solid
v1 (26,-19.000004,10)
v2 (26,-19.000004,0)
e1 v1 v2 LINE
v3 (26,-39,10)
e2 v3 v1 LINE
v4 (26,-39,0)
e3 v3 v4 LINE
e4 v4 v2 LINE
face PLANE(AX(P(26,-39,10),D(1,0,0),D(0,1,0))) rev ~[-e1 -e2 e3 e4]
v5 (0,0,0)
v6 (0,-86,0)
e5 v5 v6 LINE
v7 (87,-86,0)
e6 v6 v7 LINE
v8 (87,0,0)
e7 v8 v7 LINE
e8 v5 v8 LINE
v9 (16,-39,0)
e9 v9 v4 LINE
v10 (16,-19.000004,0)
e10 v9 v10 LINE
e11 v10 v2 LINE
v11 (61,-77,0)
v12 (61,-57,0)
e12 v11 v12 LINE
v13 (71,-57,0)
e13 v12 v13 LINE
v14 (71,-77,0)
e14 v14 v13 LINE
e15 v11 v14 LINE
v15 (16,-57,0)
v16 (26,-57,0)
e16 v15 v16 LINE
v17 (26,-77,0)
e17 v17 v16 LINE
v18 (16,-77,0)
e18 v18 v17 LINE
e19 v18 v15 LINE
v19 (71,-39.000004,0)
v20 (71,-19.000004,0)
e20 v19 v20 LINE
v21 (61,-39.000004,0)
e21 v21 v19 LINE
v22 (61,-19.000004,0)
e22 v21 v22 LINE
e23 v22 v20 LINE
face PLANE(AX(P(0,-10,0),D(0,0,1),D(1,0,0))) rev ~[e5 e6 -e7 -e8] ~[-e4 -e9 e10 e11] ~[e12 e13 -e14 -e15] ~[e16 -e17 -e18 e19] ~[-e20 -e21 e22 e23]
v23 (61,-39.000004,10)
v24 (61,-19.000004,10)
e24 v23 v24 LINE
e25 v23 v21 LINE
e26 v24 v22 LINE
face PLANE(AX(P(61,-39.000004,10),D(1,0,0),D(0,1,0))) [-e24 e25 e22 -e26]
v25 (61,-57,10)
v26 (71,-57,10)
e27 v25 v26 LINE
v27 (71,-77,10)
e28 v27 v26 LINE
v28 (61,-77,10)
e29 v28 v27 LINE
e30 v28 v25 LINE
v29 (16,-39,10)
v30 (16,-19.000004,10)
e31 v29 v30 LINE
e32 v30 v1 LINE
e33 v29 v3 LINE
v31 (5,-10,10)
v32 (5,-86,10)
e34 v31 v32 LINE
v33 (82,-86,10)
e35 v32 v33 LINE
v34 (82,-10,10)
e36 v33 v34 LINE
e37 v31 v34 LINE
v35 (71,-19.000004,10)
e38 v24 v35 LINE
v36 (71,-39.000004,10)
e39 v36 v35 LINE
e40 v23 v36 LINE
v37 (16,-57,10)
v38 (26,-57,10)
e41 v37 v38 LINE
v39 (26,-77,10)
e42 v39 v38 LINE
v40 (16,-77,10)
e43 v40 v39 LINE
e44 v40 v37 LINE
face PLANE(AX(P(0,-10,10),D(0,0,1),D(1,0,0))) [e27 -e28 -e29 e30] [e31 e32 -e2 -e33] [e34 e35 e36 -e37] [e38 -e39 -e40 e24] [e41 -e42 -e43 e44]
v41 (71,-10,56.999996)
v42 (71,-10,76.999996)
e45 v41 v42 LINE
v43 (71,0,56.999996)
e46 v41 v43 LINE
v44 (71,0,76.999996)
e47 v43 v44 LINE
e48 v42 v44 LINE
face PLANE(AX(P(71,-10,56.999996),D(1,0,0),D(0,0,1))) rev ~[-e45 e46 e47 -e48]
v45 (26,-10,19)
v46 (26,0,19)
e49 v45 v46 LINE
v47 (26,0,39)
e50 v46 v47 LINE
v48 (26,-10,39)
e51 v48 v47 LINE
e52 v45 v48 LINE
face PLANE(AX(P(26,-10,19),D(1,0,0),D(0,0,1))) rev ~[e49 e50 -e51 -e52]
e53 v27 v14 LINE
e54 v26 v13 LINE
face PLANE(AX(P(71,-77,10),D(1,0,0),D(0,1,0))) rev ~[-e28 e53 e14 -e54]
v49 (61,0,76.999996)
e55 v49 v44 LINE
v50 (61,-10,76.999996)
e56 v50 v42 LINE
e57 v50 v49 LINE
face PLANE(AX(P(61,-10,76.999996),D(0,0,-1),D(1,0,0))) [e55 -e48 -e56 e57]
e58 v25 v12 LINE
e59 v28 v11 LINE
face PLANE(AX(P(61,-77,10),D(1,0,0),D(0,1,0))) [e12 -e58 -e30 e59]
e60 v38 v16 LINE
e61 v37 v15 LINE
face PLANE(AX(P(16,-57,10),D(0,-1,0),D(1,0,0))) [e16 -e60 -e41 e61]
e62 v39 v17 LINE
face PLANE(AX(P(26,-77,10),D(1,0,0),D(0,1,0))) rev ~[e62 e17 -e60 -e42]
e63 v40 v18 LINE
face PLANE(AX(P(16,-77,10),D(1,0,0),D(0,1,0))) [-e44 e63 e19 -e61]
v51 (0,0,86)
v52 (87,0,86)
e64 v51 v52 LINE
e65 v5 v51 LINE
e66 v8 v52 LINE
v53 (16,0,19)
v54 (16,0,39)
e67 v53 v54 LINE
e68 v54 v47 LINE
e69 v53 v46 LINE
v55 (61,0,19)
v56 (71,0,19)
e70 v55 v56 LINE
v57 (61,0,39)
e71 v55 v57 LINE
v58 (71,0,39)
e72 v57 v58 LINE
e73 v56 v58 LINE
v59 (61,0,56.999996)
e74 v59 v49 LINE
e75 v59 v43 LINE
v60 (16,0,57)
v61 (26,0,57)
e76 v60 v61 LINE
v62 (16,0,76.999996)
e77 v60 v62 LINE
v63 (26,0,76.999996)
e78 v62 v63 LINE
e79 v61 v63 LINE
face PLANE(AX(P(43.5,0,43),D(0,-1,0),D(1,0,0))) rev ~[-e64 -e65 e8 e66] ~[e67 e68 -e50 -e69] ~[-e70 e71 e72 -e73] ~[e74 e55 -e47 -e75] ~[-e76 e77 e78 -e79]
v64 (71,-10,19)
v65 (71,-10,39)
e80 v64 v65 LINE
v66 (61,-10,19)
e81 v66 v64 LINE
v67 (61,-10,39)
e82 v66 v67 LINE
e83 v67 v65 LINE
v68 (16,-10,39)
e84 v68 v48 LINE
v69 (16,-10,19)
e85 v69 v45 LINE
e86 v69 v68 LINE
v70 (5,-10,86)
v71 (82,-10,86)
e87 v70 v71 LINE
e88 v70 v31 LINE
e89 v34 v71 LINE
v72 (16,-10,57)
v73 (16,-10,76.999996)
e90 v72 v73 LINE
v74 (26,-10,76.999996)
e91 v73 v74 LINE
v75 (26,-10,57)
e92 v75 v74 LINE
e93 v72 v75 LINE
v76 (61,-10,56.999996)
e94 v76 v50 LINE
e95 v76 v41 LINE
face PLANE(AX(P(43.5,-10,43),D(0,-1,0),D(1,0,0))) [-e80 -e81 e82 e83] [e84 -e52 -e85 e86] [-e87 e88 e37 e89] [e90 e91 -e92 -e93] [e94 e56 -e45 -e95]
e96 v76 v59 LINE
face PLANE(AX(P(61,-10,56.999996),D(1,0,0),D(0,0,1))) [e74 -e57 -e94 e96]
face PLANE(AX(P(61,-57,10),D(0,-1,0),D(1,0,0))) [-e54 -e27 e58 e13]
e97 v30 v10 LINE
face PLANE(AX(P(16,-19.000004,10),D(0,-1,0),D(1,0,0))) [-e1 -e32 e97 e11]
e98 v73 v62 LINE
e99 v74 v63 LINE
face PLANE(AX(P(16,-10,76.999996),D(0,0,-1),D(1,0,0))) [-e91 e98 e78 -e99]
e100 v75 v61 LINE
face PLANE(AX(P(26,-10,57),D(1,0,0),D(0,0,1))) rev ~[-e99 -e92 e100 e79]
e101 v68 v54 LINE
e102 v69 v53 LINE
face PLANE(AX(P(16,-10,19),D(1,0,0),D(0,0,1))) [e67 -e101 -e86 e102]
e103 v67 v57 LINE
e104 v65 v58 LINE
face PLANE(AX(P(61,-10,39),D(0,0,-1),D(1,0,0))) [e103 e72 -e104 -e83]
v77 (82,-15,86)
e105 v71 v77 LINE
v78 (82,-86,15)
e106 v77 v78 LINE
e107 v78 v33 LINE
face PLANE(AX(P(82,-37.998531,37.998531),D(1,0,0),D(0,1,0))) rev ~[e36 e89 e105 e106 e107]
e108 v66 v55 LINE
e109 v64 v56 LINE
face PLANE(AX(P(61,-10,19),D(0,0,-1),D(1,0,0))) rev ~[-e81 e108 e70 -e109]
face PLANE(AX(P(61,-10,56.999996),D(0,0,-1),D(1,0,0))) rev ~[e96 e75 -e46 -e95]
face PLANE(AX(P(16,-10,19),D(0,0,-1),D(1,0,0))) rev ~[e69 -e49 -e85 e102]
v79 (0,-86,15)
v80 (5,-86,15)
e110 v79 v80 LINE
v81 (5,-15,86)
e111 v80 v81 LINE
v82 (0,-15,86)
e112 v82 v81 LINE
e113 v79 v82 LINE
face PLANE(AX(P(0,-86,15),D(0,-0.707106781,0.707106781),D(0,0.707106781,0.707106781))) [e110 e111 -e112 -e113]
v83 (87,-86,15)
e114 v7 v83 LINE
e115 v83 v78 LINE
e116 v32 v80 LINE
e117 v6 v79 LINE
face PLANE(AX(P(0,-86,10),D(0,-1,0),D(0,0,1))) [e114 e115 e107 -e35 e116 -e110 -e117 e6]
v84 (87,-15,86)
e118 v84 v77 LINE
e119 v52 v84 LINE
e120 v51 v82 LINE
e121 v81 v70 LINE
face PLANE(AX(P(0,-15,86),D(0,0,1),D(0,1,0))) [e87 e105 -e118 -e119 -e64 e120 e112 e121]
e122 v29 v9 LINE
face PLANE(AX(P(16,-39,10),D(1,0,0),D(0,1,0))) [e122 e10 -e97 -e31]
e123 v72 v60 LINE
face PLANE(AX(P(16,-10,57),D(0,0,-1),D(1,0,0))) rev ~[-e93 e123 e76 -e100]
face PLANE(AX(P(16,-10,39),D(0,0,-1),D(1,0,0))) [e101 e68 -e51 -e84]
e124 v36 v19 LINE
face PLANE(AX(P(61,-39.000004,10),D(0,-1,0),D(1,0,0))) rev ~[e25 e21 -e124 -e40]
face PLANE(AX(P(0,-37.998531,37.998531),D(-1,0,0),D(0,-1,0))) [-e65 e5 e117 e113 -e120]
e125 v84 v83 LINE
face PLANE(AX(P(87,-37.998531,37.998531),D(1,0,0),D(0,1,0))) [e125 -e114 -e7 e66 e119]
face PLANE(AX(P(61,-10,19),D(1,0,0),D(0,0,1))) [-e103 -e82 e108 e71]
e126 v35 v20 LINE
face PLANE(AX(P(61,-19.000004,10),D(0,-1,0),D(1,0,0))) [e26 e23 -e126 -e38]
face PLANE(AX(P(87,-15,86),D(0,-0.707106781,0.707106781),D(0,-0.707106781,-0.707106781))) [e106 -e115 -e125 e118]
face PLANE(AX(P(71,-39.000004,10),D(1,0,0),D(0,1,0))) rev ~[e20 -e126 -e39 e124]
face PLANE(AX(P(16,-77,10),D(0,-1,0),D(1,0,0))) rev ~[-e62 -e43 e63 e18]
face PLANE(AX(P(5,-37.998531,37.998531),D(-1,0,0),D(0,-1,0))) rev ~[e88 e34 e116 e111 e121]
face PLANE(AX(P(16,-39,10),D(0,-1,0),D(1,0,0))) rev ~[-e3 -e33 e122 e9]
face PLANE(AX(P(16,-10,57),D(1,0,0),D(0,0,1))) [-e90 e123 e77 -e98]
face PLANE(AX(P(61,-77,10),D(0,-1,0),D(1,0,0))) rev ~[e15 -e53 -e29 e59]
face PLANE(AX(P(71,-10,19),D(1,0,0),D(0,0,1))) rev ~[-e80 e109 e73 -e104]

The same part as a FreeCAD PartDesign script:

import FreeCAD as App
import Part
import Sketcher

doc = App.newDocument("Part")
body = doc.addObject("PartDesign::Body", "Body")

# Sketch on XZ plane
sketch1 = body.newObject("Sketcher::SketchObject", "Sketch")
sketch1.AttachmentSupport = (doc.getObject("XZ_Plane"), [""])
sketch1.MapMode = "FlatFace"
sketch1.addGeometry(Part.LineSegment(App.Vector(0, 86, 0), App.Vector(0, 0, 0)), False)
sketch1.addGeometry(Part.LineSegment(App.Vector(0, 0, 0), App.Vector(87, 0, 0)), False)
sketch1.addGeometry(Part.LineSegment(App.Vector(87, 0, 0), App.Vector(87, 86, 0)), False)
sketch1.addGeometry(Part.LineSegment(App.Vector(87, 86, 0), App.Vector(0, 86, 0)), False)
sketch1.addConstraint(Sketcher.Constraint("Coincident", 0, 2, 1, 1))
sketch1.addConstraint(Sketcher.Constraint("Coincident", 1, 2, 2, 1))
sketch1.addConstraint(Sketcher.Constraint("Coincident", 2, 2, 3, 1))
sketch1.addConstraint(Sketcher.Constraint("Coincident", 3, 2, 0, 1))
sketch1.addConstraint(Sketcher.Constraint("Vertical", 0))
sketch1.addConstraint(Sketcher.Constraint("Horizontal", 1))
sketch1.addConstraint(Sketcher.Constraint("Vertical", 2))
sketch1.addConstraint(Sketcher.Constraint("Horizontal", 3))
sketch1.addConstraint(Sketcher.Constraint("Coincident", 0, 2, -1, 1))
sketch1.addConstraint(Sketcher.Constraint("DistanceX", 1, 1, 1, 2, 87.0))
sketch1.addConstraint(Sketcher.Constraint("DistanceY", 0, 2, 0, 1, 86.0))
pad1 = body.newObject("PartDesign::Pad", "Pad")
pad1.Profile = sketch1
pad1.Length = 10

# Sketch on XZ plane
sketch2 = body.newObject("Sketcher::SketchObject", "Sketch001")
sketch2.AttachmentSupport = (doc.getObject("XZ_Plane"), [""])
sketch2.MapMode = "FlatFace"
sketch2.AttachmentOffset = App.Placement(App.Vector(0, 0, 10), App.Rotation())
sketch2.addGeometry(Part.LineSegment(App.Vector(0, 10, 0), App.Vector(0, 0, 0)), False)
sketch2.addGeometry(Part.LineSegment(App.Vector(0, 0, 0), App.Vector(87, 0, 0)), False)
sketch2.addGeometry(Part.LineSegment(App.Vector(87, 0, 0), App.Vector(87, 10, 0)), False)
sketch2.addGeometry(Part.LineSegment(App.Vector(87, 10, 0), App.Vector(0, 10, 0)), False)
sketch2.addConstraint(Sketcher.Constraint("Coincident", 0, 2, 1, 1))
sketch2.addConstraint(Sketcher.Constraint("Coincident", 1, 2, 2, 1))
sketch2.addConstraint(Sketcher.Constraint("Coincident", 2, 2, 3, 1))
sketch2.addConstraint(Sketcher.Constraint("Coincident", 3, 2, 0, 1))
sketch2.addConstraint(Sketcher.Constraint("Vertical", 0))
sketch2.addConstraint(Sketcher.Constraint("Horizontal", 1))
sketch2.addConstraint(Sketcher.Constraint("Vertical", 2))
sketch2.addConstraint(Sketcher.Constraint("Horizontal", 3))
sketch2.addConstraint(Sketcher.Constraint("Coincident", 0, 2, -1, 1))
sketch2.addConstraint(Sketcher.Constraint("DistanceX", 1, 1, 1, 2, 87.0))
sketch2.addConstraint(Sketcher.Constraint("DistanceY", 0, 2, 0, 1, 10.0))
pad2 = body.newObject("PartDesign::Pad", "Pad001")
pad2.Profile = sketch2
pad2.Length = 76

# Sketch on YZ plane
sketch3 = body.newObject("Sketcher::SketchObject", "Sketch002")
sketch3.AttachmentSupport = (doc.getObject("YZ_Plane"), [""])
sketch3.MapMode = "FlatFace"
sketch3.AttachmentOffset = App.Placement(App.Vector(0, 0, 87), App.Rotation())
sketch3.addGeometry(Part.LineSegment(App.Vector(-86, 15, 0), App.Vector(-86, 10, 0)), False)
sketch3.addGeometry(Part.LineSegment(App.Vector(-86, 10, 0), App.Vector(-10, 10, 0)), False)
sketch3.addGeometry(Part.LineSegment(App.Vector(-10, 10, 0), App.Vector(-10, 86, 0)), False)
sketch3.addGeometry(Part.LineSegment(App.Vector(-10, 86, 0), App.Vector(-15, 86, 0)), False)
sketch3.addGeometry(Part.LineSegment(App.Vector(-15, 86, 0), App.Vector(-86, 15, 0)), False)
sketch3.addConstraint(Sketcher.Constraint("Coincident", 0, 2, 1, 1))
sketch3.addConstraint(Sketcher.Constraint("Coincident", 1, 2, 2, 1))
sketch3.addConstraint(Sketcher.Constraint("Coincident", 2, 2, 3, 1))
sketch3.addConstraint(Sketcher.Constraint("Coincident", 3, 2, 4, 1))
sketch3.addConstraint(Sketcher.Constraint("Coincident", 4, 2, 0, 1))
sketch3.addConstraint(Sketcher.Constraint("Vertical", 0))
sketch3.addConstraint(Sketcher.Constraint("Horizontal", 1))
sketch3.addConstraint(Sketcher.Constraint("Vertical", 2))
sketch3.addConstraint(Sketcher.Constraint("Horizontal", 3))
sketch3.addConstraint(Sketcher.Constraint("Equal", 3, 0))
sketch3.addConstraint(Sketcher.Constraint("Equal", 1, 2))
sketch3.addConstraint(Sketcher.Constraint("DistanceX", 1, 1, 1, 2, 76.0))
sketch3.addConstraint(Sketcher.Constraint("DistanceX", 3, 2, 3, 1, 5.0))
sketch3.addConstraint(Sketcher.Constraint("DistanceX", 0, 2, -1, 1, 86.0))
sketch3.addConstraint(Sketcher.Constraint("DistanceY", -1, 1, 0, 2, 10.0))
pad3 = body.newObject("PartDesign::Pad", "Pad002")
pad3.Profile = sketch3
pad3.Length = 5
pad3.Reversed = True

# Sketch on YZ plane
sketch4 = body.newObject("Sketcher::SketchObject", "Sketch003")
sketch4.AttachmentSupport = (doc.getObject("YZ_Plane"), [""])
sketch4.MapMode = "FlatFace"
sketch4.addGeometry(Part.LineSegment(App.Vector(-15, 86, 0), App.Vector(-10, 86, 0)), False)
sketch4.addGeometry(Part.LineSegment(App.Vector(-10, 86, 0), App.Vector(-10, 10, 0)), False)
sketch4.addGeometry(Part.LineSegment(App.Vector(-10, 10, 0), App.Vector(-86, 10, 0)), False)
sketch4.addGeometry(Part.LineSegment(App.Vector(-86, 10, 0), App.Vector(-86, 15, 0)), False)
sketch4.addGeometry(Part.LineSegment(App.Vector(-86, 15, 0), App.Vector(-15, 86, 0)), False)
sketch4.addConstraint(Sketcher.Constraint("Coincident", 0, 2, 1, 1))
sketch4.addConstraint(Sketcher.Constraint("Coincident", 1, 2, 2, 1))
sketch4.addConstraint(Sketcher.Constraint("Coincident", 2, 2, 3, 1))
sketch4.addConstraint(Sketcher.Constraint("Coincident", 3, 2, 4, 1))
sketch4.addConstraint(Sketcher.Constraint("Coincident", 4, 2, 0, 1))
sketch4.addConstraint(Sketcher.Constraint("Horizontal", 0))
sketch4.addConstraint(Sketcher.Constraint("Vertical", 1))
sketch4.addConstraint(Sketcher.Constraint("Horizontal", 2))
sketch4.addConstraint(Sketcher.Constraint("Vertical", 3))
sketch4.addConstraint(Sketcher.Constraint("Equal", 2, 1))
sketch4.addConstraint(Sketcher.Constraint("Equal", 0, 3))
sketch4.addConstraint(Sketcher.Constraint("DistanceX", 0, 1, 0, 2, 5.0))
sketch4.addConstraint(Sketcher.Constraint("DistanceX", 2, 2, 2, 1, 76.0))
sketch4.addConstraint(Sketcher.Constraint("DistanceX", 0, 2, -1, 1, 10.0))
sketch4.addConstraint(Sketcher.Constraint("DistanceY", -1, 1, 0, 2, 86.0))
pad4 = body.newObject("PartDesign::Pad", "Pad003")
pad4.Profile = sketch4
pad4.Length = 5

# Sketch on XZ plane
sketch5 = body.newObject("Sketcher::SketchObject", "Sketch004")
sketch5.AttachmentSupport = (doc.getObject("XZ_Plane"), [""])
sketch5.MapMode = "FlatFace"
sketch5.AttachmentOffset = App.Placement(App.Vector(0, 0, 10), App.Rotation())
sketch5.addGeometry(Part.LineSegment(App.Vector(16, 77, 0), App.Vector(16, 57, 0)), False)
sketch5.addGeometry(Part.LineSegment(App.Vector(16, 57, 0), App.Vector(26, 57, 0)), False)
sketch5.addGeometry(Part.LineSegment(App.Vector(26, 57, 0), App.Vector(26, 77, 0)), False)
sketch5.addGeometry(Part.LineSegment(App.Vector(26, 77, 0), App.Vector(16, 77, 0)), False)
sketch5.addGeometry(Part.LineSegment(App.Vector(16, 39, 0), App.Vector(16, 19, 0)), False)
sketch5.addGeometry(Part.LineSegment(App.Vector(16, 19, 0), App.Vector(26, 19, 0)), False)
sketch5.addGeometry(Part.LineSegment(App.Vector(26, 19, 0), App.Vector(26, 39, 0)), False)
sketch5.addGeometry(Part.LineSegment(App.Vector(26, 39, 0), App.Vector(16, 39, 0)), False)
sketch5.addGeometry(Part.LineSegment(App.Vector(61, 77, 0), App.Vector(61, 57, 0)), False)
sketch5.addGeometry(Part.LineSegment(App.Vector(61, 57, 0), App.Vector(71, 57, 0)), False)
sketch5.addGeometry(Part.LineSegment(App.Vector(71, 57, 0), App.Vector(71, 77, 0)), False)
sketch5.addGeometry(Part.LineSegment(App.Vector(71, 77, 0), App.Vector(61, 77, 0)), False)
sketch5.addGeometry(Part.LineSegment(App.Vector(61, 39, 0), App.Vector(61, 19, 0)), False)
sketch5.addGeometry(Part.LineSegment(App.Vector(61, 19, 0), App.Vector(71, 19, 0)), False)
sketch5.addGeometry(Part.LineSegment(App.Vector(71, 19, 0), App.Vector(71, 39, 0)), False)
sketch5.addGeometry(Part.LineSegment(App.Vector(71, 39, 0), App.Vector(61, 39, 0)), False)
sketch5.addConstraint(Sketcher.Constraint("Coincident", 0, 2, 1, 1))
sketch5.addConstraint(Sketcher.Constraint("Coincident", 1, 2, 2, 1))
sketch5.addConstraint(Sketcher.Constraint("Coincident", 2, 2, 3, 1))
sketch5.addConstraint(Sketcher.Constraint("Coincident", 3, 2, 0, 1))
sketch5.addConstraint(Sketcher.Constraint("Coincident", 4, 2, 5, 1))
sketch5.addConstraint(Sketcher.Constraint("Coincident", 5, 2, 6, 1))
sketch5.addConstraint(Sketcher.Constraint("Coincident", 6, 2, 7, 1))
sketch5.addConstraint(Sketcher.Constraint("Coincident", 7, 2, 4, 1))
sketch5.addConstraint(Sketcher.Constraint("Coincident", 8, 2, 9, 1))
sketch5.addConstraint(Sketcher.Constraint("Coincident", 9, 2, 10, 1))
sketch5.addConstraint(Sketcher.Constraint("Coincident", 10, 2, 11, 1))
sketch5.addConstraint(Sketcher.Constraint("Coincident", 11, 2, 8, 1))
sketch5.addConstraint(Sketcher.Constraint("Coincident", 12, 2, 13, 1))
sketch5.addConstraint(Sketcher.Constraint("Coincident", 13, 2, 14, 1))
sketch5.addConstraint(Sketcher.Constraint("Coincident", 14, 2, 15, 1))
sketch5.addConstraint(Sketcher.Constraint("Coincident", 15, 2, 12, 1))
sketch5.addConstraint(Sketcher.Constraint("Vertical", 0))
sketch5.addConstraint(Sketcher.Constraint("Horizontal", 1))
sketch5.addConstraint(Sketcher.Constraint("Vertical", 2))
sketch5.addConstraint(Sketcher.Constraint("Horizontal", 3))
sketch5.addConstraint(Sketcher.Constraint("Vertical", 4))
sketch5.addConstraint(Sketcher.Constraint("Horizontal", 5))
sketch5.addConstraint(Sketcher.Constraint("Vertical", 6))
sketch5.addConstraint(Sketcher.Constraint("Horizontal", 7))
sketch5.addConstraint(Sketcher.Constraint("Vertical", 8))
sketch5.addConstraint(Sketcher.Constraint("Horizontal", 9))
sketch5.addConstraint(Sketcher.Constraint("Vertical", 10))
sketch5.addConstraint(Sketcher.Constraint("Horizontal", 11))
sketch5.addConstraint(Sketcher.Constraint("Vertical", 12))
sketch5.addConstraint(Sketcher.Constraint("Horizontal", 13))
sketch5.addConstraint(Sketcher.Constraint("Vertical", 14))
sketch5.addConstraint(Sketcher.Constraint("Horizontal", 15))
sketch5.addConstraint(Sketcher.Constraint("Horizontal", 3, 2, 10, 2))
sketch5.addConstraint(Sketcher.Constraint("Horizontal", 5, 2, 12, 2))
sketch5.addConstraint(Sketcher.Constraint("Horizontal", 7, 2, 14, 2))
sketch5.addConstraint(Sketcher.Constraint("Vertical", 3, 2, 4, 2))
sketch5.addConstraint(Sketcher.Constraint("Vertical", 2, 2, 5, 2))
sketch5.addConstraint(Sketcher.Constraint("Vertical", 11, 2, 12, 2))
sketch5.addConstraint(Sketcher.Constraint("Vertical", 10, 2, 13, 2))
sketch5.addConstraint(Sketcher.Constraint("Equal", 7, 9))
sketch5.addConstraint(Sketcher.Constraint("Equal", 6, 8))
sketch5.addConstraint(Sketcher.Constraint("DistanceX", 1, 1, 1, 2, 10.0))
sketch5.addConstraint(Sketcher.Constraint("DistanceY", 4, 2, 4, 1, 20.0))
sketch5.addConstraint(Sketcher.Constraint("DistanceX", -1, 1, 0, 2, 16.0))
sketch5.addConstraint(Sketcher.Constraint("DistanceY", -1, 1, 0, 2, 57.0))
sketch5.addConstraint(Sketcher.Constraint("DistanceY", -1, 1, 4, 2, 19.0))
sketch5.addConstraint(Sketcher.Constraint("DistanceX", -1, 1, 8, 2, 61.0))
sketch5.addConstraint(Sketcher.Constraint("DistanceY", 0, 2, 0, 1, 19.999996))
pocket1 = body.newObject("PartDesign::Pocket", "Pocket")
pocket1.Profile = sketch5
pocket1.Length = 25

# Sketch on XY plane
sketch6 = body.newObject("Sketcher::SketchObject", "Sketch005")
sketch6.AttachmentSupport = (doc.getObject("XY_Plane"), [""])
sketch6.MapMode = "FlatFace"
sketch6.AttachmentOffset = App.Placement(App.Vector(0, 0, 10), App.Rotation())
sketch6.addGeometry(Part.LineSegment(App.Vector(16, -19, 0), App.Vector(16, -39, 0)), False)
sketch6.addGeometry(Part.LineSegment(App.Vector(16, -39, 0), App.Vector(26, -39, 0)), False)
sketch6.addGeometry(Part.LineSegment(App.Vector(26, -39, 0), App.Vector(26, -19, 0)), False)
sketch6.addGeometry(Part.LineSegment(App.Vector(26, -19, 0), App.Vector(16, -19, 0)), False)
sketch6.addGeometry(Part.LineSegment(App.Vector(61, -19, 0), App.Vector(61, -39, 0)), False)
sketch6.addGeometry(Part.LineSegment(App.Vector(61, -39, 0), App.Vector(71, -39, 0)), False)
sketch6.addGeometry(Part.LineSegment(App.Vector(71, -39, 0), App.Vector(71, -19, 0)), False)
sketch6.addGeometry(Part.LineSegment(App.Vector(71, -19, 0), App.Vector(61, -19, 0)), False)
sketch6.addGeometry(Part.LineSegment(App.Vector(61, -57, 0), App.Vector(61, -77, 0)), False)
sketch6.addGeometry(Part.LineSegment(App.Vector(61, -77, 0), App.Vector(71, -77, 0)), False)
sketch6.addGeometry(Part.LineSegment(App.Vector(71, -77, 0), App.Vector(71, -57, 0)), False)
sketch6.addGeometry(Part.LineSegment(App.Vector(71, -57, 0), App.Vector(61, -57, 0)), False)
sketch6.addGeometry(Part.LineSegment(App.Vector(16, -57, 0), App.Vector(16, -77, 0)), False)
sketch6.addGeometry(Part.LineSegment(App.Vector(16, -77, 0), App.Vector(26, -77, 0)), False)
sketch6.addGeometry(Part.LineSegment(App.Vector(26, -77, 0), App.Vector(26, -57, 0)), False)
sketch6.addGeometry(Part.LineSegment(App.Vector(26, -57, 0), App.Vector(16, -57, 0)), False)
sketch6.addConstraint(Sketcher.Constraint("Coincident", 0, 2, 1, 1))
sketch6.addConstraint(Sketcher.Constraint("Coincident", 1, 2, 2, 1))
sketch6.addConstraint(Sketcher.Constraint("Coincident", 2, 2, 3, 1))
sketch6.addConstraint(Sketcher.Constraint("Coincident", 3, 2, 0, 1))
sketch6.addConstraint(Sketcher.Constraint("Coincident", 4, 2, 5, 1))
sketch6.addConstraint(Sketcher.Constraint("Coincident", 5, 2, 6, 1))
sketch6.addConstraint(Sketcher.Constraint("Coincident", 6, 2, 7, 1))
sketch6.addConstraint(Sketcher.Constraint("Coincident", 7, 2, 4, 1))
sketch6.addConstraint(Sketcher.Constraint("Coincident", 8, 2, 9, 1))
sketch6.addConstraint(Sketcher.Constraint("Coincident", 9, 2, 10, 1))
sketch6.addConstraint(Sketcher.Constraint("Coincident", 10, 2, 11, 1))
sketch6.addConstraint(Sketcher.Constraint("Coincident", 11, 2, 8, 1))
sketch6.addConstraint(Sketcher.Constraint("Coincident", 12, 2, 13, 1))
sketch6.addConstraint(Sketcher.Constraint("Coincident", 13, 2, 14, 1))
sketch6.addConstraint(Sketcher.Constraint("Coincident", 14, 2, 15, 1))
sketch6.addConstraint(Sketcher.Constraint("Coincident", 15, 2, 12, 1))
sketch6.addConstraint(Sketcher.Constraint("Vertical", 0))
sketch6.addConstraint(Sketcher.Constraint("Horizontal", 1))
sketch6.addConstraint(Sketcher.Constraint("Vertical", 2))
sketch6.addConstraint(Sketcher.Constraint("Horizontal", 3))
sketch6.addConstraint(Sketcher.Constraint("Vertical", 4))
sketch6.addConstraint(Sketcher.Constraint("Horizontal", 5))
sketch6.addConstraint(Sketcher.Constraint("Vertical", 6))
sketch6.addConstraint(Sketcher.Constraint("Horizontal", 7))
sketch6.addConstraint(Sketcher.Constraint("Vertical", 8))
sketch6.addConstraint(Sketcher.Constraint("Horizontal", 9))
sketch6.addConstraint(Sketcher.Constraint("Vertical", 10))
sketch6.addConstraint(Sketcher.Constraint("Horizontal", 11))
sketch6.addConstraint(Sketcher.Constraint("Vertical", 12))
sketch6.addConstraint(Sketcher.Constraint("Horizontal", 13))
sketch6.addConstraint(Sketcher.Constraint("Vertical", 14))
sketch6.addConstraint(Sketcher.Constraint("Horizontal", 15))
sketch6.addConstraint(Sketcher.Constraint("Horizontal", 3, 2, 6, 2))
sketch6.addConstraint(Sketcher.Constraint("Horizontal", 9, 2, 12, 2))
sketch6.addConstraint(Sketcher.Constraint("Horizontal", 11, 2, 14, 2))
sketch6.addConstraint(Sketcher.Constraint("Vertical", 7, 2, 8, 2))
sketch6.addConstraint(Sketcher.Constraint("Vertical", 6, 2, 9, 2))
sketch6.addConstraint(Sketcher.Constraint("Vertical", 3, 2, 12, 2))
sketch6.addConstraint(Sketcher.Constraint("Vertical", 2, 2, 13, 2))
sketch6.addConstraint(Sketcher.Constraint("Equal", 3, 5))
sketch6.addConstraint(Sketcher.Constraint("Equal", 6, 8))
sketch6.addConstraint(Sketcher.Constraint("DistanceX", 1, 1, 1, 2, 10.0))
sketch6.addConstraint(Sketcher.Constraint("DistanceY", 4, 2, 4, 1, 20.0))
sketch6.addConstraint(Sketcher.Constraint("DistanceX", -1, 1, 0, 2, 16.0))
sketch6.addConstraint(Sketcher.Constraint("DistanceY", 0, 2, -1, 1, 39.0))
sketch6.addConstraint(Sketcher.Constraint("DistanceX", -1, 1, 4, 2, 61.0))
sketch6.addConstraint(Sketcher.Constraint("DistanceY", 8, 2, -1, 1, 77.0))
sketch6.addConstraint(Sketcher.Constraint("DistanceY", 0, 2, 0, 1, 19.999996))
pocket2 = body.newObject("PartDesign::Pocket", "Pocket001")
pocket2.Profile = sketch6
pocket2.Length = 25

doc.recompute()
